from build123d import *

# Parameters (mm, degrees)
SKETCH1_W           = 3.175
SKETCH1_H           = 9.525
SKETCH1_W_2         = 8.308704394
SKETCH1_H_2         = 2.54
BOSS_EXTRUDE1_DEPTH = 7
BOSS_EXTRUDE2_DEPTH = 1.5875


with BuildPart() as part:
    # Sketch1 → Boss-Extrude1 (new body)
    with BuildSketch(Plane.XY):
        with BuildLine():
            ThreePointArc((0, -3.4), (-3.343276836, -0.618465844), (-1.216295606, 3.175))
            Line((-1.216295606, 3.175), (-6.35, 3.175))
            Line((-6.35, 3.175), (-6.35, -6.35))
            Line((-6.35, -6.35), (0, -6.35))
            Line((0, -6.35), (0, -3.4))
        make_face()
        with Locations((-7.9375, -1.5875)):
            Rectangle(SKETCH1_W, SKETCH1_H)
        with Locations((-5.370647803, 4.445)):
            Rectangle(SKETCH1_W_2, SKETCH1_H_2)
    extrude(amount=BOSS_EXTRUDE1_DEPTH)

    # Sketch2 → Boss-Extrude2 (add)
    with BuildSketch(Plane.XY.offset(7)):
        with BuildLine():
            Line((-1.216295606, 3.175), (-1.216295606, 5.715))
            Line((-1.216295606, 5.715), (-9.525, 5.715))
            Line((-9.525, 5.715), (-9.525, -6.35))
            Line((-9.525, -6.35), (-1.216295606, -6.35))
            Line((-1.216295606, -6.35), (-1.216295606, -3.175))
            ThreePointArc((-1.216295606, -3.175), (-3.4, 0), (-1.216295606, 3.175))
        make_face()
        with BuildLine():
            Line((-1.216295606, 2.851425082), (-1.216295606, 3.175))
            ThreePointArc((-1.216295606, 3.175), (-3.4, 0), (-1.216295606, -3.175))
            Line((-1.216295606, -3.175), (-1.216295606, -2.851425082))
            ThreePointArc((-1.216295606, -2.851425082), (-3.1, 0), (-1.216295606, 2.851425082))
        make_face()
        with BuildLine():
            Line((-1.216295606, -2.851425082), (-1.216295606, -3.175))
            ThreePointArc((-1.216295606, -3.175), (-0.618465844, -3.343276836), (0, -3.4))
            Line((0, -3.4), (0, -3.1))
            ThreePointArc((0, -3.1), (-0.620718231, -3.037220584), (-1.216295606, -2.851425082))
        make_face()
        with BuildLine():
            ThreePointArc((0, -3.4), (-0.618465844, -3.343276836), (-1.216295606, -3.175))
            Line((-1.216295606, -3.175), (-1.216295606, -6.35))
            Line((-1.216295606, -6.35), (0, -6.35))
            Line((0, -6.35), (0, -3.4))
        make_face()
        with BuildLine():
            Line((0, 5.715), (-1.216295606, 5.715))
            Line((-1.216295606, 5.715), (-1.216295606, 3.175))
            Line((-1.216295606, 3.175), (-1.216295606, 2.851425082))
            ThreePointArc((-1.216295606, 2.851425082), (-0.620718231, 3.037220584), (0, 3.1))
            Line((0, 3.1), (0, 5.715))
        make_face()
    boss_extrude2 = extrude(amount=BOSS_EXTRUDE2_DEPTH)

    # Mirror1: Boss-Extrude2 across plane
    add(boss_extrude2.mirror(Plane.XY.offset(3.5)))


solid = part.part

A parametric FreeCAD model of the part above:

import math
import FreeCAD as App
import Part
import Sketcher
from FreeCAD import Vector
Q = App.Units.Quantity

doc = App.newDocument("Part")
body = doc.addObject("PartDesign::Body", "Body")

# Sketch on XY plane
sketch1 = body.newObject("Sketcher::SketchObject", "Sketch")
sketch1.AttachmentSupport = (doc.getObject("XY_Plane"), [""])
sketch1.MapMode = "FlatFace"
sketch1.addGeometry([
    Part.ArcOfCircle(Part.Circle(Vector(0, 0, 0), Vector(0, 0, 1), 3.4), math.radians(111), math.radians(270)),  # 0
    Part.LineSegment(Vector(-1.2, 3.2, 0), Vector(-1.2, 5.7, 0)),  # 1
    Part.LineSegment(Vector(-1.2, 5.7, 0), Vector(-9.5, 5.7, 0)),  # 2
    Part.LineSegment(Vector(-9.5, 5.7, 0), Vector(-9.5, -6.3, 0)),  # 3
    Part.LineSegment(Vector(-9.5, -6.3, 0), Vector(0, -6.3, 0)),  # 4
    Part.LineSegment(Vector(0, -6.3, 0), Vector(0, -3.4, 0)),  # 5
], False)
sketch1.addConstraint([
    Sketcher.Constraint("Coincident", 0, 1, 1, 1),
    Sketcher.Constraint("Coincident", 1, 2, 2, 1),
    Sketcher.Constraint("Coincident", 2, 2, 3, 1),
    Sketcher.Constraint("Coincident", 3, 2, 4, 1),
    Sketcher.Constraint("Coincident", 4, 2, 5, 1),
    Sketcher.Constraint("Coincident", 5, 2, 0, 2),
    Sketcher.Constraint("Vertical", 1),
    Sketcher.Constraint("Horizontal", 2),
    Sketcher.Constraint("Vertical", 3),
    Sketcher.Constraint("Horizontal", 4),
    Sketcher.Constraint("Vertical", 5),
    Sketcher.Constraint("Coincident", 0, 3, -1, 1),
    Sketcher.Constraint("PointOnObject", 4, 2, -2),
    Sketcher.Constraint("DistanceY", 1, 1, 1, 2, Q("0.1 in")),
    Sketcher.Constraint("DistanceX", 4, 1, 4, 2, Q("0.375 in")),
    Sketcher.Constraint("DistanceY", 3, 2, 3, 1, Q("0.475 in")),
    Sketcher.Constraint("DistanceY", 3, 2, -1, 1, Q("0.25 in")),
    Sketcher.Constraint("Radius", 0, Q("3.4 mm")),
])
pad1 = body.newObject("PartDesign::Pad", "Pad")
pad1.Profile = sketch1
pad1.Length = 7

# Sketch on XY plane
sketch2 = body.newObject("Sketcher::SketchObject", "Sketch001")
sketch2.AttachmentSupport = (doc.getObject("XY_Plane"), [""])
sketch2.MapMode = "FlatFace"
sketch2.AttachmentOffset = App.Placement(Vector(0, 0, 7), App.Rotation())
sketch2.addGeometry([
    Part.LineSegment(Vector(-9.5, 5.7, 0), Vector(-9.5, -6.3, 0)),  # 0
    Part.LineSegment(Vector(-9.5, -6.3, 0), Vector(0, -6.3, 0)),  # 1
    Part.LineSegment(Vector(0, -6.3, 0), Vector(0, -3.1, 0)),  # 2
    Part.ArcOfCircle(Part.Circle(Vector(0, 0, 0), Vector(0, 0, 1), 3.1), math.radians(-113), math.radians(-90)),  # 3
    Part.ArcOfCircle(Part.Circle(Vector(0, 0, 0), Vector(0, 0, 1), 3.1), math.radians(113), math.radians(247)),  # 4
    Part.ArcOfCircle(Part.Circle(Vector(0, 0, 0), Vector(0, 0, 1), 3.1), math.radians(90), math.radians(113)),  # 5
    Part.LineSegment(Vector(0, 3.1, 0), Vector(0, 5.7, 0)),  # 6
    Part.LineSegment(Vector(0, 5.7, 0), Vector(-9.5, 5.7, 0)),  # 7
], False)
sketch2.addConstraint([
    Sketcher.Constraint("Coincident", 0, 2, 1, 1),
    Sketcher.Constraint("Coincident", 1, 2, 2, 1),
    Sketcher.Constraint("Coincident", 2, 2, 3, 2),
    Sketcher.Constraint("Tangent", 3, 1, 4, 2),
    Sketcher.Constraint("Tangent", 4, 1, 5, 2),
    Sketcher.Constraint("Coincident", 5, 1, 6, 1),
    Sketcher.Constraint("Coincident", 6, 2, 7, 1),
    Sketcher.Constraint("Coincident", 7, 2, 0, 1),
    Sketcher.Constraint("Vertical", 0),
    Sketcher.Constraint("Horizontal", 1),
    Sketcher.Constraint("Vertical", 2),
    Sketcher.Constraint("Vertical", 6),
    Sketcher.Constraint("Horizontal", 7),
    Sketcher.Constraint("Coincident", 3, 3, -1, 1),
    Sketcher.Constraint("Coincident", 5, 3, -1, 1),
    Sketcher.Constraint("PointOnObject", 1, 2, -2),
    Sketcher.Constraint("PointOnObject", 5, 1, -2),
    Sketcher.Constraint("Vertical", 3, 1, 4, 1),
    Sketcher.Constraint("DistanceX", 1, 1, 1, 2, Q("0.375 in")),
    Sketcher.Constraint("DistanceY", 0, 2, 0, 1, Q("0.475 in")),
    Sketcher.Constraint("DistanceY", 0, 2, -1, 1, Q("0.25 in")),
    Sketcher.Constraint("Radius", 3, Q("3.1 mm")),
    Sketcher.Constraint("DistanceY", 3, 1, 4, 1, Q("5.70285 mm")),
])
pad2 = body.newObject("PartDesign::Pad", "Pad001")
pad2.Profile = sketch2
pad2.Length = Q("0.0625 in")
doc.recompute()

datumplane = body.newObject("PartDesign::Plane", "DatumPlane")
datumplane.AttachmentSupport = (doc.getObject("XY_Plane"), [""])
datumplane.MapMode = "FlatFace"
datumplane.AttachmentOffset = App.Placement(Vector(0, 0, 3.5), App.Rotation())
mirrored = body.newObject("PartDesign::Mirrored", "Mirrored")
mirrored.Originals = [pad2]
mirrored.MirrorPlane = (datumplane, [""])
body.Tip = mirrored

doc.recompute()
